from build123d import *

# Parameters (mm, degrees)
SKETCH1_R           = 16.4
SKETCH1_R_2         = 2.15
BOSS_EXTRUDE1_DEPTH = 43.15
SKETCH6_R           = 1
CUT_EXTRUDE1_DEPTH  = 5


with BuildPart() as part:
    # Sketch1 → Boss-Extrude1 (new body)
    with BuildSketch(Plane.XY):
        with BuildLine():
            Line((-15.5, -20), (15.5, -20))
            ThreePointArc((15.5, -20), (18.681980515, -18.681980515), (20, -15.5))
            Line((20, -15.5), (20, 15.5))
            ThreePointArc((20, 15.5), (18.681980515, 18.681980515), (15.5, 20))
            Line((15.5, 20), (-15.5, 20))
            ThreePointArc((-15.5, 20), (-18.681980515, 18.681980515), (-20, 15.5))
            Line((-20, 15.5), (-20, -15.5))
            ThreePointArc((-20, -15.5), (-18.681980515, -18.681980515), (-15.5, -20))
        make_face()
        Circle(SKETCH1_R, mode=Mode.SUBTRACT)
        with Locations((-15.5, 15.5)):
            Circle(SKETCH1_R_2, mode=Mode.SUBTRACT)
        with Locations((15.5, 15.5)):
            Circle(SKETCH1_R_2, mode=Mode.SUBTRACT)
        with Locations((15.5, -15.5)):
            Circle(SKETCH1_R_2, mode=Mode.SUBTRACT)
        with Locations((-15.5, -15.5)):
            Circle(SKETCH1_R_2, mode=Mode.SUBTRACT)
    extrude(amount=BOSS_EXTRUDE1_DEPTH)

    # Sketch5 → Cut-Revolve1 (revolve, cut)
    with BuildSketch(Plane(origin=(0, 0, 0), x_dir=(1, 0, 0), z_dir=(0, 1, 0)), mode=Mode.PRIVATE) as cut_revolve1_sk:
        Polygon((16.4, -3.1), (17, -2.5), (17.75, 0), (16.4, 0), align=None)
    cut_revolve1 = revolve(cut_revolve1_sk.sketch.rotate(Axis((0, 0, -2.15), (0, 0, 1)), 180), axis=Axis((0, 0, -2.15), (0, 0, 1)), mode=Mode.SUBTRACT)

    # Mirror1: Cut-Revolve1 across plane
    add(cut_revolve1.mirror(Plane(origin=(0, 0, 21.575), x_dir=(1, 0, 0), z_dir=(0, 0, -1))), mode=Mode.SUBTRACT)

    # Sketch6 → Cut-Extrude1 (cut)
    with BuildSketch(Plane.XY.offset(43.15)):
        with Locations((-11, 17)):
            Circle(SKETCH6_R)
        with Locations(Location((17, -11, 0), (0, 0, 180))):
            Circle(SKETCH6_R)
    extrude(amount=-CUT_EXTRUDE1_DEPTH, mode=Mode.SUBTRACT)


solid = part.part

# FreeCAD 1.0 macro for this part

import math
import FreeCAD as App
import Part
import Sketcher
from FreeCAD import Vector
Q = App.Units.Quantity

doc = App.newDocument("Part")
params = doc.addObject("Spreadsheet::Sheet", "Params")
for row, (alias, value) in enumerate([
    ("sketch1_diameter", "4.3 mm"),
    ("sketch1_diameter2", "32.8 mm"),
    ("sketch1_radius", "4.5 mm"),
    ("sketch1_width", "31 mm"),
    ("pad1_length", "43.15 mm"),
    ("sketch2_height", "3.1 mm"),
    ("sketch2_width", "1.35 mm"),
    ("groove_angle", "360 deg"),
    ("sketch3_diameter", "2 mm"),
    ("pocket1_length", "5 mm"),
], start=1):
    params.set(f"A{row}", alias)
    params.set(f"B{row}", "=" + value)
    params.setAlias(f"B{row}", alias)

body = doc.addObject("PartDesign::Body", "Body")

sketch1 = body.newObject("Sketcher::SketchObject", "Sketch")
sketch1.AttachmentSupport = (doc.getObject("XY_Plane"), [""])
sketch1.MapMode = "FlatFace"
sketch1.addGeometry([
    Part.LineSegment(Vector(-15.5, -20, 0), Vector(15.5, -20, 0)),
    Part.ArcOfCircle(Part.Circle(Vector(15.5, -15.5, 0), Vector(0, 0, 1), 4.5), math.radians(-90), math.radians(0)),
    Part.LineSegment(Vector(20, -15.5, 0), Vector(20, 15.5, 0)),
    Part.ArcOfCircle(Part.Circle(Vector(15.5, 15.5, 0), Vector(0, 0, 1), 4.5), math.radians(0), math.radians(90)),
    Part.LineSegment(Vector(15.5, 20, 0), Vector(-15.5, 20, 0)),
    Part.ArcOfCircle(Part.Circle(Vector(-15.5, 15.5, 0), Vector(0, 0, 1), 4.5), math.radians(90), math.radians(180)),
    Part.LineSegment(Vector(-20, 15.5, 0), Vector(-20, -15.5, 0)),
    Part.ArcOfCircle(Part.Circle(Vector(-15.5, -15.5, 0), Vector(0, 0, 1), 4.5), math.radians(-180), math.radians(-90)),
    Part.Circle(Vector(-15.5, -15.5, 0), Vector(0, 0, 1), 2.1),
    Part.Circle(Vector(15.5, -15.5, 0), Vector(0, 0, 1), 2.1),
    Part.Circle(Vector(-15.5, 15.5, 0), Vector(0, 0, 1), 2.1),
    Part.Circle(Vector(0, 0, 0), Vector(0, 0, 1), 16.4),
    Part.Circle(Vector(15.5, 15.5, 0), Vector(0, 0, 1), 2.1),
], False)
sketch1.addConstraint([
    Sketcher.Constraint("Tangent", 0, 2, 1, 1),
    Sketcher.Constraint("Tangent", 1, 2, 2, 1),
    Sketcher.Constraint("Tangent", 2, 2, 3, 1),
    Sketcher.Constraint("Tangent", 3, 2, 4, 1),
    Sketcher.Constraint("Tangent", 4, 2, 5, 1),
    Sketcher.Constraint("Tangent", 5, 2, 6, 1),
    Sketcher.Constraint("Tangent", 6, 2, 7, 1),
    Sketcher.Constraint("Tangent", 7, 2, 0, 1),
    Sketcher.Constraint("Horizontal", 0),
    Sketcher.Constraint("Vertical", 2),
    Sketcher.Constraint("Horizontal", 4),
    Sketcher.Constraint("Vertical", 6),
    Sketcher.Constraint("Coincident", 11, 3, -1, 1),
    Sketcher.Constraint("Coincident", 8, 3, 7, 3),
    Sketcher.Constraint("Coincident", 9, 3, 1, 3),
    Sketcher.Constraint("Coincident", 10, 3, 5, 3),
    Sketcher.Constraint("Coincident", 12, 3, 3, 3),
    Sketcher.Constraint("Equal", 1, 3),
    Sketcher.Constraint("Equal", 3, 5),
    Sketcher.Constraint("Equal", 5, 7),
    Sketcher.Constraint("Equal", 8, 9),
    Sketcher.Constraint("Equal", 9, 10),
    Sketcher.Constraint("Equal", 10, 12),
    Sketcher.Constraint("Symmetric", 1, 3, 5, 3, -1, 1),
    Sketcher.Constraint("Equal", 4, 2),
    Sketcher.Constraint("Diameter", 8, Q("4.3 mm")),
    Sketcher.Constraint("Diameter", 11, Q("32.8 mm")),
    Sketcher.Constraint("Radius", 1, Q("4.5 mm")),
    Sketcher.Constraint("DistanceX", 0, 1, 0, 2, Q("31 mm")),
])
sketch1.setExpression("Constraints[25]", "Params.sketch1_diameter")
sketch1.setExpression("Constraints[26]", "Params.sketch1_diameter2")
sketch1.setExpression("Constraints[27]", "Params.sketch1_radius")
sketch1.setExpression("Constraints[28]", "Params.sketch1_width")
pad1 = body.newObject("PartDesign::Pad", "Pad")
pad1.Profile = sketch1
pad1.setExpression("Length", "Params.pad1_length")

sketch2 = body.newObject("Sketcher::SketchObject", "Sketch001")
sketch2.AttachmentSupport = (doc.getObject("XZ_Plane"), [""])
sketch2.MapMode = "FlatFace"
sketch2.addGeometry([
    Part.LineSegment(Vector(16.4, 3.1, 0), Vector(17, 2.5, 0)),
    Part.LineSegment(Vector(17, 2.5, 0), Vector(17.8, 0, 0)),
    Part.LineSegment(Vector(17.8, 0, 0), Vector(16.4, 0, 0)),
    Part.LineSegment(Vector(16.4, 0, 0), Vector(16.4, 3.1, 0)),
], False)
sketch2.addConstraint([
    Sketcher.Constraint("Coincident", 0, 2, 1, 1),
    Sketcher.Constraint("Coincident", 1, 2, 2, 1),
    Sketcher.Constraint("Coincident", 2, 2, 3, 1),
    Sketcher.Constraint("Coincident", 3, 2, 0, 1),
    Sketcher.Constraint("Horizontal", 2),
    Sketcher.Constraint("Vertical", 3),
    Sketcher.Constraint("PointOnObject", 1, 2, -1),
    Sketcher.Constraint("Angle", 0, Q("-45 deg")),
    Sketcher.Constraint("DistanceY", 3, 1, 3, 2, Q("3.1 mm")),
    Sketcher.Constraint("DistanceX", -1, 1, 0, 2, Q("17 mm")),
    Sketcher.Constraint("DistanceX", 2, 2, 2, 1, Q("1.35 mm")),
    Sketcher.Constraint("DistanceY", -1, 1, 0, 2, Q("2.5 mm")),
])
sketch2.setExpression("Constraints[8]", "Params.sketch2_height")
sketch2.setExpression("Constraints[10]", "Params.sketch2_width")
groove = body.newObject("PartDesign::Groove", "Groove")
groove.Profile = sketch2
groove.ReferenceAxis = (sketch2, ["V_Axis"])
groove.setExpression("Angle", "Params.groove_angle")
doc.recompute()

datumplane = body.newObject("PartDesign::Plane", "DatumPlane")
datumplane.AttachmentSupport = (doc.getObject("XY_Plane"), [""])
datumplane.MapMode = "FlatFace"
datumplane.AttachmentOffset = App.Placement(Vector(0, 0, 21.575), App.Rotation())
mirrored = body.newObject("PartDesign::Mirrored", "Mirrored")
mirrored.Originals = [groove]
mirrored.MirrorPlane = (datumplane, [""])
body.Tip = mirrored

sketch3 = body.newObject("Sketcher::SketchObject", "Sketch002")
sketch3.AttachmentSupport = (doc.getObject("XY_Plane"), [""])
sketch3.MapMode = "FlatFace"
sketch3.AttachmentOffset = App.Placement(Vector(0, 0, 43.15), App.Rotation())
sketch3.addGeometry([
    Part.Circle(Vector(-11, 17, 0), Vector(0, 0, 1), 1),
    Part.Circle(Vector(17, -11, 0), Vector(0, 0, 1), 1),
], False)
sketch3.addConstraint([
    Sketcher.Constraint("Equal", 0, 1),
    Sketcher.Constraint("Diameter", 0, Q("2 mm")),
    Sketcher.Constraint("DistanceX", 0, 3, -1, 1, Q("11 mm")),
    Sketcher.Constraint("DistanceY", -1, 1, 0, 3, Q("17 mm")),
    Sketcher.Constraint("DistanceX", -1, 1, 1, 3, Q("17 mm")),
    Sketcher.Constraint("DistanceY", 1, 3, -1, 1, Q("11 mm")),
])
sketch3.setExpression("Constraints[1]", "Params.sketch3_diameter")
pocket1 = body.newObject("PartDesign::Pocket", "Pocket")
pocket1.Profile = sketch3
pocket1.setExpression("Length", "Params.pocket1_length")

doc.recompute()
